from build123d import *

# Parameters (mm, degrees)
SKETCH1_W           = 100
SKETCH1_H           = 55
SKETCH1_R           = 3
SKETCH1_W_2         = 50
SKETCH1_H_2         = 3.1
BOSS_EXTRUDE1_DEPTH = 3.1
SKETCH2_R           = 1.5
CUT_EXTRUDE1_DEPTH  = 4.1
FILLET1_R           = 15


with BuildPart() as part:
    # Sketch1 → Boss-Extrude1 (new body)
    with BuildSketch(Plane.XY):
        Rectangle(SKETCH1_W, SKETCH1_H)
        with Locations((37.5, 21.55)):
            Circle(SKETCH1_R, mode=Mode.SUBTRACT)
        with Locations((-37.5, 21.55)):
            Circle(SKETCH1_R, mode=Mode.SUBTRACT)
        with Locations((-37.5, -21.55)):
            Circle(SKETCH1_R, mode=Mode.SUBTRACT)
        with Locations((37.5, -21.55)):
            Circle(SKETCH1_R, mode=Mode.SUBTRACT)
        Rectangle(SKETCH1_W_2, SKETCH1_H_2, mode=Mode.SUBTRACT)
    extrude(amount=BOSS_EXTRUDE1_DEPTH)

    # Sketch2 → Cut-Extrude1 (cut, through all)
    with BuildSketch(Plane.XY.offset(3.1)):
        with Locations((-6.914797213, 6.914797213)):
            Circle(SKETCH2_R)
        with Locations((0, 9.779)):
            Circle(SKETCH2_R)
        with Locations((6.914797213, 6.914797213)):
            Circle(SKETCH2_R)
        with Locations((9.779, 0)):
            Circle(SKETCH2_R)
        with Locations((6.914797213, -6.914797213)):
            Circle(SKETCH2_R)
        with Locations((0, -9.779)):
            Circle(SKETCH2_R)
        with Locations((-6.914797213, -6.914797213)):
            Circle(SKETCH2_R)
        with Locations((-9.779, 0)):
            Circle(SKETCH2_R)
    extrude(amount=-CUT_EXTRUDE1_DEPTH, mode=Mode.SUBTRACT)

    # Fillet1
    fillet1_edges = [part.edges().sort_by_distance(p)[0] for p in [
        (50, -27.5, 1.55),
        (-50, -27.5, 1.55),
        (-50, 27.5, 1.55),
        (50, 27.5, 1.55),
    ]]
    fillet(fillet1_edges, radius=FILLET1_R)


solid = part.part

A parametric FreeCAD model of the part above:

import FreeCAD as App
import Part
import Sketcher

V = App.Vector


def edges_at(feature, points):
    """Names of the edges that pass closest to the given points."""
    edges = feature.Shape.Edges
    near = lambda p: min(range(len(edges)), key=lambda i: edges[i].distToShape(Part.Vertex(*p))[0])
    return sorted({f"Edge{near(p) + 1}" for p in points})


def add_polygon(sketch, points):
    """Adds a closed chain of lines whose ends are joined by coincident constraints."""
    first, n = sketch.GeometryCount, len(points)
    for a, b in zip(points, points[1:] + points[:1]):
        sketch.addGeometry(Part.LineSegment(App.Vector(*a, 0), App.Vector(*b, 0)), False)
    for i in range(n):
        sketch.addConstraint(Sketcher.Constraint("Coincident", first + i, 2, first + (i + 1) % n, 1))

doc = App.newDocument("Part")
body = doc.addObject("PartDesign::Body", "Body")

sketch1 = doc.addObject("Sketcher::SketchObject", "Sketch")
body.addObject(sketch1)
sketch1.AttachmentSupport = (doc.XY_Plane, [""])
sketch1.MapMode = "FlatFace"
add_polygon(sketch1, [(-50, 27.5), (-50, -27.5), (50, -27.5), (50, 27.5)])
sketch1.addGeometry(Part.Circle(V(-37.5, -21.6, 0), V(0, 0, 1), 3), False)
sketch1.addGeometry(Part.Circle(V(37.5, -21.6, 0), V(0, 0, 1), 3), False)
sketch1.addGeometry(Part.Circle(V(-37.5, 21.6, 0), V(0, 0, 1), 3), False)
add_polygon(sketch1, [(25, -1.6), (-25, -1.6), (-25, 1.6), (25, 1.6)])
sketch1.addGeometry(Part.Circle(V(37.5, 21.6, 0), V(0, 0, 1), 3), False)
sketch1.addConstraint([
    Sketcher.Constraint("Vertical", 0),
    Sketcher.Constraint("Horizontal", 1),
    Sketcher.Constraint("Vertical", 2),
    Sketcher.Constraint("Horizontal", 3),
    Sketcher.Constraint("Horizontal", 7),
    Sketcher.Constraint("Vertical", 8),
    Sketcher.Constraint("Horizontal", 9),
    Sketcher.Constraint("Vertical", 10),
    Sketcher.Constraint("Equal", 4, 5),
    Sketcher.Constraint("Equal", 5, 6),
    Sketcher.Constraint("Equal", 6, 11),
    Sketcher.Constraint("Symmetric", 5, 3, 6, 3, -1, 1),
    Sketcher.Constraint("Symmetric", 4, 3, 11, 3, -1, 1),
    Sketcher.Constraint("Symmetric", 0, 2, 2, 2, -1, 1),
    Sketcher.Constraint("Symmetric", 7, 2, 9, 2, -1, 1),
    Sketcher.Constraint("Symmetric", 4, 3, 5, 3, -2),
    Sketcher.Constraint("Diameter", 4, 6.0),
    Sketcher.Constraint("DistanceX", 1, 1, 1, 2, 100.0),
    Sketcher.Constraint("DistanceX", 7, 2, 7, 1, 50.0),
    Sketcher.Constraint("DistanceY", 0, 2, 0, 1, 55.0),
    Sketcher.Constraint("DistanceY", 8, 1, 8, 2, 3.1),
    Sketcher.Constraint("DistanceX", 4, 3, 5, 3, 75.0),
    Sketcher.Constraint("DistanceY", 4, 3, 7, 2, 20.0),
])
pad1 = doc.addObject("PartDesign::Pad", "Pad")
body.addObject(pad1)
pad1.Profile = sketch1
pad1.Length = 3.1

sketch2 = doc.addObject("Sketcher::SketchObject", "Sketch001")
body.addObject(sketch2)
sketch2.AttachmentSupport = (doc.XY_Plane, [""])
sketch2.MapMode = "FlatFace"
sketch2.AttachmentOffset = App.Placement(V(0, 0, 3.1), App.Rotation())
sketch2.addGeometry([
    Part.Circle(V(-6.9, 6.9, 0), V(0, 0, 1), 1.5),
    Part.Circle(V(0, 9.8, 0), V(0, 0, 1), 1.5),
    Part.Circle(V(6.9, 6.9, 0), V(0, 0, 1), 1.5),
    Part.Circle(V(9.8, 0, 0), V(0, 0, 1), 1.5),
    Part.Circle(V(6.9, -6.9, 0), V(0, 0, 1), 1.5),
    Part.Circle(V(0, -9.8, 0), V(0, 0, 1), 1.5),
    Part.Circle(V(-6.9, -6.9, 0), V(0, 0, 1), 1.5),
    Part.Circle(V(-9.8, 0, 0), V(0, 0, 1), 1.5),
], False)
sketch2.addConstraint([
    Sketcher.Constraint("Equal", 0, 1),
    Sketcher.Constraint("Equal", 1, 2),
    Sketcher.Constraint("Equal", 2, 3),
    Sketcher.Constraint("Equal", 3, 4),
    Sketcher.Constraint("Equal", 4, 5),
    Sketcher.Constraint("Equal", 5, 6),
    Sketcher.Constraint("Equal", 6, 7),
    Sketcher.Constraint("Symmetric", 0, 3, 4, 3, -1, 1),
    Sketcher.Constraint("Symmetric", 1, 3, 5, 3, -1, 1),
    Sketcher.Constraint("Symmetric", 2, 3, 6, 3, -1, 1),
    Sketcher.Constraint("Symmetric", 3, 3, 7, 3, -1, 1),
    Sketcher.Constraint("Symmetric", 0, 3, 2, 3, -2),
    Sketcher.Constraint("PointOnObject", 1, 3, -2),
    Sketcher.Constraint("PointOnObject", 3, 3, -1),
    Sketcher.Constraint("Diameter", 0, 3.0),
    Sketcher.Constraint("DistanceY", -1, 1, 1, 3, 9.779),
    Sketcher.Constraint("DistanceX", -1, 1, 3, 3, 9.779),
    Sketcher.Constraint("DistanceX", 0, 3, -1, 1, 6.914797),
    Sketcher.Constraint("DistanceY", -1, 1, 0, 3, 6.914797),
])
pocket1 = doc.addObject("PartDesign::Pocket", "Pocket")
body.addObject(pocket1)
pocket1.Profile = sketch2
pocket1.Type = "ThroughAll"
doc.recompute()

fillet = doc.addObject("PartDesign::Fillet", "Fillet")
body.addObject(fillet)
fillet.Base = (pocket1, edges_at(pocket1, [
    (50, -27.5, 1.55),
    (-50, -27.5, 1.55),
    (-50, 27.5, 1.55),
    (50, 27.5, 1.55),
]))
fillet.Radius = 15

doc.recompute()
